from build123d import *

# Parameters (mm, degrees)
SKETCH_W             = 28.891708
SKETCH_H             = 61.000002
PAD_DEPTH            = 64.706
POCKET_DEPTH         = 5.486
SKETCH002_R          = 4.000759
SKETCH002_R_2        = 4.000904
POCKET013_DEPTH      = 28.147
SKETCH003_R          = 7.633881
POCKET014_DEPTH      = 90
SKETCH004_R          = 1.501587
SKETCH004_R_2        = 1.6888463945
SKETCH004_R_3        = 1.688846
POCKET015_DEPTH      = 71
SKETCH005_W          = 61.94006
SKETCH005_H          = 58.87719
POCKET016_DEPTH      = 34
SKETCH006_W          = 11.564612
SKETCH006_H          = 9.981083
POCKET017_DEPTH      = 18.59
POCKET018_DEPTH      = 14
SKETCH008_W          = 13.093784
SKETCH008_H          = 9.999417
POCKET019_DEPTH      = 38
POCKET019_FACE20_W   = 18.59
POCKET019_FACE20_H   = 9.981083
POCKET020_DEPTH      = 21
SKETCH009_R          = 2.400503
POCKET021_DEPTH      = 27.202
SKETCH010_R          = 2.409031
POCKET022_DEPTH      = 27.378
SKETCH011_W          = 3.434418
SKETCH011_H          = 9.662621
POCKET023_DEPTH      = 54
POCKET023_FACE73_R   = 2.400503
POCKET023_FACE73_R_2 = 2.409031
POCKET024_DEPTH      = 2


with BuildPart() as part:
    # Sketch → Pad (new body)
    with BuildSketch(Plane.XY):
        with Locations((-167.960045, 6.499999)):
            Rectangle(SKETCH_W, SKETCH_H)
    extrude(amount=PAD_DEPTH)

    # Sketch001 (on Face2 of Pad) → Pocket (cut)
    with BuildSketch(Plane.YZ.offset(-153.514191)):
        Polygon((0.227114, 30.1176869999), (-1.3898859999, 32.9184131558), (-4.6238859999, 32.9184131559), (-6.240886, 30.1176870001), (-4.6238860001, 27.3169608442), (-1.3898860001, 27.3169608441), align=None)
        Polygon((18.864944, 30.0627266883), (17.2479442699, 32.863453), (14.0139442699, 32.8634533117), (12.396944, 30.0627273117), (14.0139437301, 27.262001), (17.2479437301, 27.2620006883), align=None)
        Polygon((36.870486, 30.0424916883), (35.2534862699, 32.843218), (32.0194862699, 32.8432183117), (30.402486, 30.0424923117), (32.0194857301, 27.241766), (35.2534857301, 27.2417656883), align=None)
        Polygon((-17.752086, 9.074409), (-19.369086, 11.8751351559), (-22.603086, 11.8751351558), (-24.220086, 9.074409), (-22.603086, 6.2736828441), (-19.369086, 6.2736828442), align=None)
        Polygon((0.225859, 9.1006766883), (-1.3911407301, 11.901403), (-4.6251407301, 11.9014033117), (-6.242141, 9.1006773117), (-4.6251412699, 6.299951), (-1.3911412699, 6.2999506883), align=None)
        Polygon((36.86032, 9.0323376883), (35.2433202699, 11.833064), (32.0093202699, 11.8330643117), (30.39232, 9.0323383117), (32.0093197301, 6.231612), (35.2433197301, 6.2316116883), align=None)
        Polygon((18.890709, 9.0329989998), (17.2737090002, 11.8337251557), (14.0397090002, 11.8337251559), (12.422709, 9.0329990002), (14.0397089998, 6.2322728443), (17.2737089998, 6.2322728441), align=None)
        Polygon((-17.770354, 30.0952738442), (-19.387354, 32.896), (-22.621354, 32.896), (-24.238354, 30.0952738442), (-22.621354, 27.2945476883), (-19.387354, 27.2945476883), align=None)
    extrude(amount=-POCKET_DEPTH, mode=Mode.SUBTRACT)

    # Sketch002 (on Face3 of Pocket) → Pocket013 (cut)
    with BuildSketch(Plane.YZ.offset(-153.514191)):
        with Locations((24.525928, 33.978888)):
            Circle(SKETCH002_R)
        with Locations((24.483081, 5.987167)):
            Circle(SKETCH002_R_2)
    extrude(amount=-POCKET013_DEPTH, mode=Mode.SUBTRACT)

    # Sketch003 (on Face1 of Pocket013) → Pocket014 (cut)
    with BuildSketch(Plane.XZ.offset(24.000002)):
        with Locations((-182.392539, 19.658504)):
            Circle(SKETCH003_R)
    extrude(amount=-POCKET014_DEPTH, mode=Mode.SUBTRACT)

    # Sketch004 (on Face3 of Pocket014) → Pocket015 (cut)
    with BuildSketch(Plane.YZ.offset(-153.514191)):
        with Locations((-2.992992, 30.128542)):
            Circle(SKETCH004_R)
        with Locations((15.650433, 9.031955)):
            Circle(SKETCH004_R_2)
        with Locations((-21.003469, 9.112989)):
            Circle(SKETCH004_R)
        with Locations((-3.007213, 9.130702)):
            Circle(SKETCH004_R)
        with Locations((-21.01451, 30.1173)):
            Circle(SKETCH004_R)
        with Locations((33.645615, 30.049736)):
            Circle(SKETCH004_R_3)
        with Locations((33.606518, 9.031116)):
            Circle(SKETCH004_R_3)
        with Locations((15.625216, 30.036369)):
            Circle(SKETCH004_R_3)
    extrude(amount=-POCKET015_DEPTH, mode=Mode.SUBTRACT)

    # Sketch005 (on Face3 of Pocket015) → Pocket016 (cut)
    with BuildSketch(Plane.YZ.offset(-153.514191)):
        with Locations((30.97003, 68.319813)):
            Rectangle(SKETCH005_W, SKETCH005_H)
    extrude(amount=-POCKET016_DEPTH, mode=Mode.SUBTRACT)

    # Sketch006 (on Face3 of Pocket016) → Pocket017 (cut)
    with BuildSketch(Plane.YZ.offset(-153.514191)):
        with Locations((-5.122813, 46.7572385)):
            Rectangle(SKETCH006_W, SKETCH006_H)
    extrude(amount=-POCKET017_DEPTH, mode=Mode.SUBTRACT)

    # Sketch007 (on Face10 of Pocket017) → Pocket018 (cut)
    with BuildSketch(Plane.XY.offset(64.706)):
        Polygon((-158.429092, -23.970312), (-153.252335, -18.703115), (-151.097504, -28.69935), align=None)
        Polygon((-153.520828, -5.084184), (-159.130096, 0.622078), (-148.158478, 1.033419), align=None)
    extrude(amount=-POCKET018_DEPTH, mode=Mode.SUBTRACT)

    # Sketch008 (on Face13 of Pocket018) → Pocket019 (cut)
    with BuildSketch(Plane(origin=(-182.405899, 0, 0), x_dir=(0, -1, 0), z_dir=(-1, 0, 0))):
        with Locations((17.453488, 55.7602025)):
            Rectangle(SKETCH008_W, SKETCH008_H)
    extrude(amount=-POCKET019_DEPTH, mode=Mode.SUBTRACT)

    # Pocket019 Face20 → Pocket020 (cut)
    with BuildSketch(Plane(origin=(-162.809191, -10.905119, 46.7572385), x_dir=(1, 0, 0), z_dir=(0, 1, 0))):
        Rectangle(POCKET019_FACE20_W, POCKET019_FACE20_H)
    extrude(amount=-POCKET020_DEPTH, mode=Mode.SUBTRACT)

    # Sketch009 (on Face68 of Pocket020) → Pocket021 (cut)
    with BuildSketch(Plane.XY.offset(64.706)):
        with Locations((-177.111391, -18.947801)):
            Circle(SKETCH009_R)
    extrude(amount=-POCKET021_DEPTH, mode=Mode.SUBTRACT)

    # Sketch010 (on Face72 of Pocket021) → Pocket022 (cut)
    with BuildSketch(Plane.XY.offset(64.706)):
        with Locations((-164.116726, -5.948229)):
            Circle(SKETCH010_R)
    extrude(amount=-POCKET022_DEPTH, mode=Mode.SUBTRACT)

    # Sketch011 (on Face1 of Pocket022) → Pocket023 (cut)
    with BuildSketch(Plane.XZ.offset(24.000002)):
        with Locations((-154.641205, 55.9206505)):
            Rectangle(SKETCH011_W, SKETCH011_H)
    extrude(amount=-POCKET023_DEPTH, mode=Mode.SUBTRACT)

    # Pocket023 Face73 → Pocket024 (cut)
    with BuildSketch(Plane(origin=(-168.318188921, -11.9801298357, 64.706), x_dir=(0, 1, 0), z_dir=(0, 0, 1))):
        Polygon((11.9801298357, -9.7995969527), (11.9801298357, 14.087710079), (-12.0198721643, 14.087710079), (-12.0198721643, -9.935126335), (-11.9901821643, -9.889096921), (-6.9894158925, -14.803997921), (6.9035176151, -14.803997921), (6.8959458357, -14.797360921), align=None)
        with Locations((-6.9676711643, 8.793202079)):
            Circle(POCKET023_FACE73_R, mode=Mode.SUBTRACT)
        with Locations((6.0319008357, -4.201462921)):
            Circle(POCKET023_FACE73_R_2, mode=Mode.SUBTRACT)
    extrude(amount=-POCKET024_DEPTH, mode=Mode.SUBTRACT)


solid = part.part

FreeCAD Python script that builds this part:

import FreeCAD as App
import Part
import Sketcher

V = App.Vector
Q = App.Units.Quantity


def add_polygon(sketch, points):
    """Adds a closed chain of lines whose ends are joined by coincident constraints."""
    first, n = sketch.GeometryCount, len(points)
    for a, b in zip(points, points[1:] + points[:1]):
        sketch.addGeometry(Part.LineSegment(App.Vector(*a, 0), App.Vector(*b, 0)), False)
    for i in range(n):
        sketch.addConstraint(Sketcher.Constraint("Coincident", first + i, 2, first + (i + 1) % n, 1))

doc = App.newDocument("Part")
body = doc.addObject("PartDesign::Body", "Body")

# Sketch on XY plane
sketch1 = body.newObject("Sketcher::SketchObject", "Sketch")
sketch1.AttachmentSupport = (doc.getObject("XY_Plane"), [""])
sketch1.MapMode = "FlatFace"
add_polygon(sketch1, [(-182, 37), (-182, -24), (-154, -24), (-154, 37)])  # lines 0-3
sketch1.addConstraint([
    Sketcher.Constraint("Vertical", 0),
    Sketcher.Constraint("Horizontal", 1),
    Sketcher.Constraint("Vertical", 2),
    Sketcher.Constraint("Horizontal", 3),
    Sketcher.Constraint("DistanceY", 0, 2, 0, 1, 61.000002),
    Sketcher.Constraint("DistanceY", 0, 2, -1, 1, 24.000002),
    Sketcher.Constraint("DistanceX", 0, 2, -1, 1, 182.405899),
    Sketcher.Constraint("DistanceX", 1, 1, 1, 2, 28.891708),
])
pad1 = body.newObject("PartDesign::Pad", "Pad")
pad1.Profile = sketch1
pad1.Length = 64.706

# Sketch on YZ plane
sketch2 = body.newObject("Sketcher::SketchObject", "Sketch001")
sketch2.AttachmentSupport = (doc.getObject("YZ_Plane"), [""])
sketch2.MapMode = "FlatFace"
sketch2.AttachmentOffset = App.Placement(V(0, 0, -153.514191), App.Rotation())
add_polygon(sketch2, [(0.2, 30.1), (-1.4, 32.9), (-4.6, 32.9), (-6.2, 30.1), (-4.6, 27.3), (-1.4, 27.3)])  # lines 0-5
add_polygon(sketch2, [(18.9, 30.1), (17.2, 32.9), (14, 32.9), (12.4, 30.1), (14, 27.3), (17.2, 27.3)])  # lines 6-11
add_polygon(sketch2, [(36.9, 30), (35.3, 32.8), (32, 32.8), (30.4, 30), (32, 27.2), (35.3, 27.2)])  # lines 12-17
add_polygon(sketch2, [(-17.8, 9.1), (-19.4, 11.9), (-22.6, 11.9), (-24.2, 9.1), (-22.6, 6.3), (-19.4, 6.3)])  # lines 18-23
add_polygon(sketch2, [(0.2, 9.1), (-1.4, 11.9), (-4.6, 11.9), (-6.2, 9.1), (-4.6, 6.3), (-1.4, 6.3)])  # lines 24-29
add_polygon(sketch2, [(36.9, 9), (35.2, 11.8), (32, 11.8), (30.4, 9), (32, 6.2), (35.2, 6.2)])  # lines 30-35
add_polygon(sketch2, [(18.9, 9), (17.3, 11.8), (14, 11.8), (12.4, 9), (14, 6.2), (17.3, 6.2)])  # lines 36-41
add_polygon(sketch2, [(-17.8, 30.1), (-19.4, 32.9), (-22.6, 32.9), (-24.2, 30.1), (-22.6, 27.3), (-19.4, 27.3)])  # lines 42-47
sketch2.addConstraint([
    Sketcher.Constraint("Horizontal", 1),
    Sketcher.Constraint("Horizontal", 4),
    Sketcher.Constraint("Horizontal", 7),
    Sketcher.Constraint("Horizontal", 10),
    Sketcher.Constraint("Horizontal", 13),
    Sketcher.Constraint("Horizontal", 16),
    Sketcher.Constraint("Horizontal", 19),
    Sketcher.Constraint("Horizontal", 22),
    Sketcher.Constraint("Horizontal", 25),
    Sketcher.Constraint("Horizontal", 28),
    Sketcher.Constraint("Horizontal", 31),
    Sketcher.Constraint("Horizontal", 34),
    Sketcher.Constraint("Horizontal", 37),
    Sketcher.Constraint("Horizontal", 40),
    Sketcher.Constraint("Horizontal", 43),
    Sketcher.Constraint("Horizontal", 46),
    Sketcher.Constraint("Parallel", 0, 3),
    Sketcher.Constraint("Parallel", 2, 5),
    Sketcher.Constraint("Parallel", 3, 6),
    Sketcher.Constraint("Parallel", 5, 8),
    Sketcher.Constraint("Parallel", 6, 9),
    Sketcher.Constraint("Parallel", 8, 11),
    Sketcher.Constraint("Parallel", 9, 12),
    Sketcher.Constraint("Parallel", 11, 14),
    Sketcher.Constraint("Parallel", 12, 15),
    Sketcher.Constraint("Parallel", 14, 17),
    Sketcher.Constraint("Parallel", 15, 18),
    Sketcher.Constraint("Parallel", 17, 20),
    Sketcher.Constraint("Parallel", 18, 21),
    Sketcher.Constraint("Parallel", 20, 23),
    Sketcher.Constraint("Parallel", 21, 24),
    Sketcher.Constraint("Parallel", 23, 26),
    Sketcher.Constraint("Parallel", 24, 27),
    Sketcher.Constraint("Parallel", 26, 29),
    Sketcher.Constraint("Parallel", 27, 30),
    Sketcher.Constraint("Parallel", 29, 32),
    Sketcher.Constraint("Parallel", 30, 33),
    Sketcher.Constraint("Parallel", 32, 35),
    Sketcher.Constraint("Parallel", 33, 36),
    Sketcher.Constraint("Parallel", 35, 38),
    Sketcher.Constraint("Parallel", 36, 39),
    Sketcher.Constraint("Parallel", 38, 41),
    Sketcher.Constraint("Parallel", 39, 42),
    Sketcher.Constraint("Parallel", 41, 44),
    Sketcher.Constraint("Parallel", 42, 45),
    Sketcher.Constraint("Parallel", 44, 47),
    Sketcher.Constraint("Horizontal", 2, 2, 5, 2),
    Sketcher.Constraint("Horizontal", 8, 2, 11, 2),
    Sketcher.Constraint("Horizontal", 14, 2, 17, 2),
    Sketcher.Constraint("Horizontal", 20, 2, 23, 2),
    Sketcher.Constraint("Horizontal", 26, 2, 29, 2),
    Sketcher.Constraint("Horizontal", 32, 2, 35, 2),
    Sketcher.Constraint("Horizontal", 38, 2, 41, 2),
    Sketcher.Constraint("Horizontal", 44, 2, 47, 2),
    Sketcher.Constraint("Vertical", 1, 2, 3, 2),
    Sketcher.Constraint("Vertical", 0, 2, 4, 2),
    Sketcher.Constraint("Vertical", 7, 2, 9, 2),
    Sketcher.Constraint("Vertical", 13, 2, 15, 2),
    Sketcher.Constraint("Vertical", 19, 2, 21, 2),
    Sketcher.Constraint("Vertical", 25, 2, 27, 2),
    Sketcher.Constraint("Vertical", 31, 2, 33, 2),
    Sketcher.Constraint("Vertical", 37, 2, 39, 2),
    Sketcher.Constraint("Vertical", 43, 2, 45, 2),
    Sketcher.Constraint("Equal", 4, 7),
    Sketcher.Constraint("Equal", 10, 13),
    Sketcher.Constraint("Equal", 16, 19),
    Sketcher.Constraint("Equal", 22, 25),
    Sketcher.Constraint("Equal", 28, 31),
    Sketcher.Constraint("Equal", 34, 37),
    Sketcher.Constraint("Equal", 40, 43),
    Sketcher.Constraint("Equal", 5, 6),
    Sketcher.Constraint("Equal", 11, 12),
    Sketcher.Constraint("Equal", 17, 18),
    Sketcher.Constraint("Equal", 23, 24),
    Sketcher.Constraint("Equal", 29, 30),
    Sketcher.Constraint("Equal", 35, 36),
    Sketcher.Constraint("Equal", 41, 42),
    Sketcher.Constraint("Angle", 0, Q("120 deg")),
    Sketcher.Constraint("DistanceX", 1, 2, 1, 1, 3.234),
    Sketcher.Constraint("Distance", 0, 3.234),
    Sketcher.Constraint("DistanceY", -1, 1, 9, 2, 27.262001),
    Sketcher.Constraint("DistanceY", -1, 1, 38, 2, 9.032999),
    Sketcher.Constraint("DistanceY", -1, 1, 42, 2, 32.896),
    Sketcher.Constraint("DistanceX", 18, 2, 3, 2, 14.7452),
    Sketcher.Constraint("DistanceY", 30, 2, 16, 2, 15.408702),
    Sketcher.Constraint("DistanceY", -1, 1, 3, 2, 27.316961),
    Sketcher.Constraint("DistanceY", -1, 1, 13, 2, 32.843218),
    Sketcher.Constraint("DistanceY", -1, 1, 20, 2, 9.074409),
    Sketcher.Constraint("DistanceX", 24, 2, -1, 1, 1.391141),
    Sketcher.Constraint("DistanceY", -1, 1, 27, 2, 6.299951),
    Sketcher.Constraint("DistanceX", -1, 1, 30, 2, 35.24332),
    Sketcher.Constraint("DistanceX", -1, 1, 36, 2, 17.273709),
    Sketcher.Constraint("DistanceX", 5, 2, 6, 2, 17.02083),
    Sketcher.Constraint("DistanceX", 11, 2, 14, 2, 11.537542),
    Sketcher.Constraint("DistanceX", 43, 2, 2, 2, 16.380468),
    Sketcher.Constraint("DistanceX", 0, 2, -1, 1, 1.389886),
])
pocket1 = body.newObject("PartDesign::Pocket", "Pocket")
pocket1.Profile = sketch2
pocket1.Length = 5.486

# Sketch on YZ plane
sketch3 = body.newObject("Sketcher::SketchObject", "Sketch002")
sketch3.AttachmentSupport = (doc.getObject("YZ_Plane"), [""])
sketch3.MapMode = "FlatFace"
sketch3.AttachmentOffset = App.Placement(V(0, 0, -153.514191), App.Rotation())
sketch3.addGeometry([
    Part.Circle(V(24.5, 34, 0), V(0, 0, 1), 4),
    Part.Circle(V(24.5, 6, 0), V(0, 0, 1), 4),
], False)
sketch3.addConstraint([
    Sketcher.Constraint("Diameter", 0, 8.001518),
    Sketcher.Constraint("Diameter", 1, 8.001808),
    Sketcher.Constraint("DistanceX", -1, 1, 0, 3, 24.525928),
    Sketcher.Constraint("DistanceX", -1, 1, 1, 3, 24.483081),
    Sketcher.Constraint("DistanceY", 1, 3, 0, 3, 27.991721),
    Sketcher.Constraint("DistanceY", -1, 1, 0, 3, 33.978888),
])
pocket2 = body.newObject("PartDesign::Pocket", "Pocket001")
pocket2.Profile = sketch3
pocket2.Length = 28.147

# Sketch on XZ plane
sketch4 = body.newObject("Sketcher::SketchObject", "Sketch003")
sketch4.AttachmentSupport = (doc.getObject("XZ_Plane"), [""])
sketch4.MapMode = "FlatFace"
sketch4.AttachmentOffset = App.Placement(V(0, 0, 24.000002), App.Rotation())
sketch4.addGeometry(Part.Circle(V(-182, 20, 0), V(0, 0, 1), 8), False)
sketch4.addConstraint([
    Sketcher.Constraint("Diameter", 0, 15.267762),
    Sketcher.Constraint("DistanceX", 0, 3, -1, 1, 182.392539),
    Sketcher.Constraint("DistanceY", -1, 1, 0, 3, 19.658504),
])
pocket3 = body.newObject("PartDesign::Pocket", "Pocket002")
pocket3.Profile = sketch4
pocket3.Length = 90

# Sketch on YZ plane
sketch5 = body.newObject("Sketcher::SketchObject", "Sketch004")
sketch5.AttachmentSupport = (doc.getObject("YZ_Plane"), [""])
sketch5.MapMode = "FlatFace"
sketch5.AttachmentOffset = App.Placement(V(0, 0, -153.514191), App.Rotation())
sketch5.addGeometry([
    Part.Circle(V(-3, 30.1, 0), V(0, 0, 1), 1.5),  # 0
    Part.Circle(V(15.7, 9, 0), V(0, 0, 1), 1.7),  # 1
    Part.Circle(V(-21, 9.1, 0), V(0, 0, 1), 1.5),  # 2
    Part.Circle(V(-3, 9.1, 0), V(0, 0, 1), 1.5),  # 3
    Part.Circle(V(-21, 30.1, 0), V(0, 0, 1), 1.5),  # 4
    Part.Circle(V(33.6, 30, 0), V(0, 0, 1), 1.7),  # 5
    Part.Circle(V(33.6, 9, 0), V(0, 0, 1), 1.7),  # 6
    Part.Circle(V(15.6, 30, 0), V(0, 0, 1), 1.7),  # 7
], False)
sketch5.addConstraint([
    Sketcher.Constraint("Equal", 0, 2),
    Sketcher.Constraint("Equal", 2, 3),
    Sketcher.Constraint("Equal", 3, 4),
    Sketcher.Constraint("Equal", 1, 5),
    Sketcher.Constraint("Equal", 5, 6),
    Sketcher.Constraint("Equal", 6, 7),
    Sketcher.Constraint("Diameter", 0, 3.003174),
    Sketcher.Constraint("Diameter", 1, 3.377693),
    Sketcher.Constraint("DistanceY", -1, 1, 4, 3, 30.1173),
    Sketcher.Constraint("DistanceY", 3, 3, 4, 3, 20.986598),
    Sketcher.Constraint("DistanceX", 7, 3, 5, 3, 18.020399),
    Sketcher.Constraint("DistanceX", 7, 3, 6, 3, 17.981302),
    Sketcher.Constraint("DistanceY", -1, 1, 0, 3, 30.128542),
    Sketcher.Constraint("DistanceX", 2, 3, -1, 1, 21.003469),
    Sketcher.Constraint("DistanceY", -1, 1, 2, 3, 9.112989),
    Sketcher.Constraint("DistanceX", 4, 3, -1, 1, 21.01451),
    Sketcher.Constraint("DistanceY", -1, 1, 7, 3, 30.036369),
    Sketcher.Constraint("DistanceX", 3, 3, 0, 3, 0.014221),
    Sketcher.Constraint("DistanceX", 4, 3, 0, 3, 18.021518),
    Sketcher.Constraint("DistanceX", 1, 3, 5, 3, 17.995182),
    Sketcher.Constraint("DistanceY", 1, 3, 5, 3, 21.017781),
    Sketcher.Constraint("DistanceY", 6, 3, 1, 3, 0.000839),
    Sketcher.Constraint("DistanceX", 3, 3, 6, 3, 36.613731),
    Sketcher.Constraint("DistanceY", -1, 1, 1, 3, 9.031955),
])
pocket4 = body.newObject("PartDesign::Pocket", "Pocket003")
pocket4.Profile = sketch5
pocket4.Length = 71

# Sketch on YZ plane
sketch6 = body.newObject("Sketcher::SketchObject", "Sketch005")
sketch6.AttachmentSupport = (doc.getObject("YZ_Plane"), [""])
sketch6.MapMode = "FlatFace"
sketch6.AttachmentOffset = App.Placement(V(0, 0, -153.514191), App.Rotation())
add_polygon(sketch6, [(0, 98), (0, 39), (62, 39), (62, 98)])  # lines 0-3
sketch6.addConstraint([
    Sketcher.Constraint("Vertical", 0),
    Sketcher.Constraint("Horizontal", 1),
    Sketcher.Constraint("Vertical", 2),
    Sketcher.Constraint("Horizontal", 3),
    Sketcher.Constraint("PointOnObject", 0, 2, -2),
    Sketcher.Constraint("DistanceX", 1, 1, 1, 2, 61.94006),
    Sketcher.Constraint("DistanceY", 0, 2, 0, 1, 58.87719),
    Sketcher.Constraint("DistanceY", -1, 1, 2, 2, 97.758408),
])
pocket5 = body.newObject("PartDesign::Pocket", "Pocket004")
pocket5.Profile = sketch6
pocket5.Length = 34

# Sketch on YZ plane
sketch7 = body.newObject("Sketcher::SketchObject", "Sketch006")
sketch7.AttachmentSupport = (doc.getObject("YZ_Plane"), [""])
sketch7.MapMode = "FlatFace"
sketch7.AttachmentOffset = App.Placement(V(0, 0, -153.514191), App.Rotation())
add_polygon(sketch7, [(-11, 52), (-11, 42), (1, 42), (1, 52)])  # lines 0-3
sketch7.addConstraint([
    Sketcher.Constraint("Vertical", 0),
    Sketcher.Constraint("Horizontal", 1),
    Sketcher.Constraint("Vertical", 2),
    Sketcher.Constraint("Horizontal", 3),
    Sketcher.Constraint("DistanceX", 1, 1, 1, 2, 11.564612),
    Sketcher.Constraint("DistanceY", 0, 2, 0, 1, 9.981083),
    Sketcher.Constraint("DistanceX", 0, 2, -1, 1, 10.905119),
    Sketcher.Constraint("DistanceY", -1, 1, 2, 2, 51.74778),
])
pocket6 = body.newObject("PartDesign::Pocket", "Pocket005")
pocket6.Profile = sketch7
pocket6.Length = 18.59

# Sketch on XY plane
sketch8 = body.newObject("Sketcher::SketchObject", "Sketch007")
sketch8.AttachmentSupport = (doc.getObject("XY_Plane"), [""])
sketch8.MapMode = "FlatFace"
sketch8.AttachmentOffset = App.Placement(V(0, 0, 64.706), App.Rotation())
add_polygon(sketch8, [(-153, -19), (-158, -24), (-151, -29)])  # lines 0-2
add_polygon(sketch8, [(-159, 1), (-154, -5), (-148, 1)])  # lines 3-5
sketch8.addConstraint([
    Sketcher.Constraint("Distance", 4, 8.135101),
    Sketcher.Constraint("Distance", 2, 10.22585),
    Sketcher.Constraint("Distance", 3, 8.001582),
    Sketcher.Constraint("DistanceX", 0, 2, -1, 1, 158.429092),
    Sketcher.Constraint("DistanceY", 0, 2, -1, 1, 23.970312),
    Sketcher.Constraint("DistanceY", 1, 2, -1, 1, 28.69935),
    Sketcher.Constraint("DistanceX", 3, 2, -1, 1, 153.520828),
    Sketcher.Constraint("DistanceX", 4, 2, -1, 1, 148.158478),
    Sketcher.Constraint("DistanceY", -1, 1, 4, 2, 1.033419),
    Sketcher.Constraint("DistanceY", -1, 1, 5, 2, 0.622078),
    Sketcher.Constraint("DistanceX", 0, 2, 1, 2, 7.331588),
    Sketcher.Constraint("DistanceX", 2, 2, 1, 2, 2.154831),
])
pocket7 = body.newObject("PartDesign::Pocket", "Pocket006")
pocket7.Profile = sketch8
pocket7.Length = 14

# Sketch on YZ plane
sketch9 = body.newObject("Sketcher::SketchObject", "Sketch008")
sketch9.AttachmentSupport = (doc.getObject("YZ_Plane"), [""])
sketch9.MapMode = "FlatFace"
sketch9.AttachmentOffset = App.Placement(V(0, 0, -182.405899), App.Rotation())
add_polygon(sketch9, [(-11, 61), (-11, 51), (-24, 51), (-24, 61)])  # lines 0-3
sketch9.addConstraint([
    Sketcher.Constraint("Vertical", 0),
    Sketcher.Constraint("Horizontal", 1),
    Sketcher.Constraint("Vertical", 2),
    Sketcher.Constraint("Horizontal", 3),
    Sketcher.Constraint("DistanceX", 1, 2, 1, 1, 13.093784),
    Sketcher.Constraint("DistanceY", 0, 2, 0, 1, 9.999417),
    Sketcher.Constraint("DistanceX", 1, 2, -1, 1, 24.00038),
    Sketcher.Constraint("DistanceY", -1, 1, 2, 2, 60.759911),
])
pocket8 = body.newObject("PartDesign::Pocket", "Pocket007")
pocket8.Profile = sketch9
pocket8.Length = 38
pocket8.Reversed = True

# Sketch on XZ plane
sketch10 = body.newObject("Sketcher::SketchObject", "Sketch009")
sketch10.AttachmentSupport = (doc.getObject("XZ_Plane"), [""])
sketch10.MapMode = "FlatFace"
sketch10.AttachmentOffset = App.Placement(V(0, 0, 10.905119), App.Rotation())
add_polygon(sketch10, [(-172, 42), (-172, 52), (-154, 52), (-154, 42)])  # lines 0-3
sketch10.addConstraint([
    Sketcher.Constraint("Vertical", 0),
    Sketcher.Constraint("Horizontal", 1),
    Sketcher.Constraint("Vertical", 2),
    Sketcher.Constraint("Horizontal", 3),
    Sketcher.Constraint("DistanceX", 1, 1, 1, 2, 18.59),
    Sketcher.Constraint("DistanceY", 0, 1, 0, 2, 9.981083),
    Sketcher.Constraint("DistanceX", 0, 2, -1, 1, 172.104191),
    Sketcher.Constraint("DistanceY", -1, 1, 0, 2, 51.74778),
])
pocket9 = body.newObject("PartDesign::Pocket", "Pocket008")
pocket9.Profile = sketch10
pocket9.Length = 21
pocket9.Reversed = True

# Sketch on XY plane
sketch11 = body.newObject("Sketcher::SketchObject", "Sketch010")
sketch11.AttachmentSupport = (doc.getObject("XY_Plane"), [""])
sketch11.MapMode = "FlatFace"
sketch11.AttachmentOffset = App.Placement(V(0, 0, 64.706), App.Rotation())
sketch11.addGeometry(Part.Circle(V(-177.1, -18.9, 0), V(0, 0, 1), 2.4), False)
sketch11.addConstraint([
    Sketcher.Constraint("Diameter", 0, 4.801006),
    Sketcher.Constraint("DistanceY", 0, 3, -1, 1, 18.947801),
    Sketcher.Constraint("DistanceX", 0, 3, -1, 1, 177.111391),
])
pocket10 = body.newObject("PartDesign::Pocket", "Pocket009")
pocket10.Profile = sketch11
pocket10.Length = 27.202

# Sketch on XY plane
sketch12 = body.newObject("Sketcher::SketchObject", "Sketch011")
sketch12.AttachmentSupport = (doc.getObject("XY_Plane"), [""])
sketch12.MapMode = "FlatFace"
sketch12.AttachmentOffset = App.Placement(V(0, 0, 64.706), App.Rotation())
sketch12.addGeometry(Part.Circle(V(-164.1, -5.9, 0), V(0, 0, 1), 2.4), False)
sketch12.addConstraint([
    Sketcher.Constraint("Diameter", 0, 4.818062),
    Sketcher.Constraint("DistanceY", 0, 3, -1, 1, 5.948229),
    Sketcher.Constraint("DistanceX", 0, 3, -1, 1, 164.116726),
])
pocket11 = body.newObject("PartDesign::Pocket", "Pocket010")
pocket11.Profile = sketch12
pocket11.Length = 27.378

# Sketch on XZ plane
sketch13 = body.newObject("Sketcher::SketchObject", "Sketch012")
sketch13.AttachmentSupport = (doc.getObject("XZ_Plane"), [""])
sketch13.MapMode = "FlatFace"
sketch13.AttachmentOffset = App.Placement(V(0, 0, 24.000002), App.Rotation())
add_polygon(sketch13, [(-156.4, 60.8), (-156.4, 51.1), (-152.9, 51.1), (-152.9, 60.8)])  # lines 0-3
sketch13.addConstraint([
    Sketcher.Constraint("Vertical", 0),
    Sketcher.Constraint("Horizontal", 1),
    Sketcher.Constraint("Vertical", 2),
    Sketcher.Constraint("Horizontal", 3),
    Sketcher.Constraint("DistanceX", 1, 1, 1, 2, 3.434418),
    Sketcher.Constraint("DistanceY", 0, 2, 0, 1, 9.662621),
    Sketcher.Constraint("DistanceY", -1, 1, 0, 2, 51.08934),
    Sketcher.Constraint("DistanceX", 0, 2, -1, 1, 156.358414),
])
pocket12 = body.newObject("PartDesign::Pocket", "Pocket011")
pocket12.Profile = sketch13
pocket12.Length = 54

# Sketch on XY plane
sketch14 = body.newObject("Sketcher::SketchObject", "Sketch013")
sketch14.AttachmentSupport = (doc.getObject("XY_Plane"), [""])
sketch14.MapMode = "FlatFace"
sketch14.AttachmentOffset = App.Placement(V(0, 0, 64.706), App.Rotation())
add_polygon(sketch14, [(-158.519, 0), (-182.406, 0), (-182.406, -24), (-158.383, -24), (-158.429, -23.97), (-153.514, -18.97), (-153.514, -5.077), (-153.521, -5.084)])  # lines 0-7
sketch14.addGeometry(Part.Circle(V(-164.117, -5.948, 0), V(0, 0, 1), 2.409), False)  # 8
sketch14.addGeometry(Part.Circle(V(-177.111, -18.948, 0), V(0, 0, 1), 2.401), False)  # 9
sketch14.addConstraint([
    Sketcher.Constraint("Horizontal", 0),
    Sketcher.Constraint("Vertical", 1),
    Sketcher.Constraint("Horizontal", 2),
    Sketcher.Constraint("Vertical", 5),
    Sketcher.Constraint("PointOnObject", 0, 2, -1),
    Sketcher.Constraint("DistanceY", 1, 2, 1, 1, 24.000002),
    Sketcher.Constraint("Diameter", 8, 4.818062),
    Sketcher.Constraint("Diameter", 9, 4.801006),
    Sketcher.Constraint("Distance", 4, 7.011698),
    Sketcher.Constraint("DistanceY", 9, 3, -1, 1, 18.947801),
    Sketcher.Constraint("DistanceX", 0, 2, -1, 1, 182.405899),
    Sketcher.Constraint("DistanceX", 9, 3, 3, 2, 18.682299),
    Sketcher.Constraint("DistanceX", 3, 2, 4, 2, 4.914901),
    Sketcher.Constraint("DistanceY", 3, 2, 5, 2, 18.8937),
    Sketcher.Constraint("DistanceX", 8, 3, 6, 2, 10.595898),
    Sketcher.Constraint("DistanceX", 7, 2, 5, 2, 5.004401),
    Sketcher.Constraint("Distance", 6, 0.010069),
    Sketcher.Constraint("DistanceX", 0, 2, 0, 1, 23.887307),
    Sketcher.Constraint("DistanceX", 2, 1, 2, 2, 24.022836),
    Sketcher.Constraint("DistanceY", 8, 3, -1, 1, 5.948229),
    Sketcher.Constraint("DistanceY", 3, 2, -1, 1, 23.970312),
    Sketcher.Constraint("DistanceX", 6, 2, -1, 1, 153.520828),
])
pocket13 = body.newObject("PartDesign::Pocket", "Pocket012")
pocket13.Profile = sketch14
pocket13.Length = 2

doc.recompute()
